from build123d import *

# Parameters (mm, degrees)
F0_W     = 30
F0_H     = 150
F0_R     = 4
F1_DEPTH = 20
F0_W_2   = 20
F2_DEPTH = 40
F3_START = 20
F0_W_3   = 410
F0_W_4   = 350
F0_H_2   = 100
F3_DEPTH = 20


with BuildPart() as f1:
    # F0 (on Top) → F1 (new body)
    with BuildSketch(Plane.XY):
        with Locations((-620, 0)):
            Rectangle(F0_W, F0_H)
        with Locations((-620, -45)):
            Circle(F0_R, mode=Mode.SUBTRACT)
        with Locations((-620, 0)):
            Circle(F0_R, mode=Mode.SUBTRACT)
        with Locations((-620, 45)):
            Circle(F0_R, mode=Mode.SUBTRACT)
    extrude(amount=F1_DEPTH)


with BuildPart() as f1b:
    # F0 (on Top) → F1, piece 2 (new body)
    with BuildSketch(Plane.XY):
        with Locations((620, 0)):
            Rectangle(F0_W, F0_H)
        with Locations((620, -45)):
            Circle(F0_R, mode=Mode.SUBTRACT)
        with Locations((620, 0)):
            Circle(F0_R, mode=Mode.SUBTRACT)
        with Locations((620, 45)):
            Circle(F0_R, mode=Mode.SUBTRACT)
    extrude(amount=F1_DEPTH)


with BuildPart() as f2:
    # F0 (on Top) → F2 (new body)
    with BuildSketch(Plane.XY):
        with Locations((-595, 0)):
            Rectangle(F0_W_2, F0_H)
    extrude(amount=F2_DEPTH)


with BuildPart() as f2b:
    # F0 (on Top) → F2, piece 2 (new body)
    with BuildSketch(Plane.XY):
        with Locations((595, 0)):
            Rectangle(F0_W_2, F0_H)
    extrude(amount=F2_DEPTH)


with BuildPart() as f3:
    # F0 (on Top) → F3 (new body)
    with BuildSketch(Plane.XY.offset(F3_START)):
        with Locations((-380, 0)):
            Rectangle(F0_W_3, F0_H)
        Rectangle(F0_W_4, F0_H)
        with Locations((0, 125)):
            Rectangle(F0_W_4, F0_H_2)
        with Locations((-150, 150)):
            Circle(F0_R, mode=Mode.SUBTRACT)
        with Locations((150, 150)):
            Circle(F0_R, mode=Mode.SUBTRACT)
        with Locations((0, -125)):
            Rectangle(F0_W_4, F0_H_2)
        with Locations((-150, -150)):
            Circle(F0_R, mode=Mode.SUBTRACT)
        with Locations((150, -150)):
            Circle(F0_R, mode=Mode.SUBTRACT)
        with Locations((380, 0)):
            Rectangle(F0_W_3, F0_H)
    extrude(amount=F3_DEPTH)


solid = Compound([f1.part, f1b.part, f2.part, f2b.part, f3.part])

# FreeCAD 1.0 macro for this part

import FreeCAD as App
import Part
import Sketcher
from FreeCAD import Vector


def add_polygon(sketch, points):
    """Adds a closed chain of lines whose ends are joined by coincident constraints."""
    first, n = sketch.GeometryCount, len(points)
    for a, b in zip(points, points[1:] + points[:1]):
        sketch.addGeometry(Part.LineSegment(App.Vector(*a, 0), App.Vector(*b, 0)), False)
    for i in range(n):
        sketch.addConstraint(Sketcher.Constraint("Coincident", first + i, 2, first + (i + 1) % n, 1))

doc = App.newDocument("Part")
body = doc.addObject("PartDesign::Body", "Body")

sketch1 = body.newObject("Sketcher::SketchObject", "Sketch")
sketch1.AttachmentSupport = (doc.getObject("XY_Plane"), [""])
sketch1.MapMode = "FlatFace"
add_polygon(sketch1, [(-635, 75), (-635, -75), (-605, -75), (-605, 75)])
sketch1.addGeometry(Part.Circle(Vector(-620, -45, 0), Vector(0, 0, 1), 4), False)
sketch1.addGeometry(Part.Circle(Vector(-620, 0, 0), Vector(0, 0, 1), 4), False)
sketch1.addGeometry(Part.Circle(Vector(-620, 45, 0), Vector(0, 0, 1), 4), False)
sketch1.addConstraint([
    Sketcher.Constraint("Vertical", 0),
    Sketcher.Constraint("Horizontal", 1),
    Sketcher.Constraint("Vertical", 2),
    Sketcher.Constraint("Horizontal", 3),
    Sketcher.Constraint("Equal", 4, 5),
    Sketcher.Constraint("Equal", 5, 6),
    Sketcher.Constraint("Symmetric", 4, 3, 6, 3, -1),
    Sketcher.Constraint("PointOnObject", 5, 3, -1),
    Sketcher.Constraint("Vertical", 4, 3, 5, 3),
    Sketcher.Constraint("Diameter", 4, 8.0),
    Sketcher.Constraint("DistanceX", 1, 1, 1, 2, 30.0),
    Sketcher.Constraint("DistanceY", 0, 2, 0, 1, 150.0),
    Sketcher.Constraint("DistanceX", 4, 3, -1, 1, 620.0),
    Sketcher.Constraint("DistanceY", 4, 3, -1, 1, 45.0),
    Sketcher.Constraint("DistanceX", 0, 2, -1, 1, 635.0),
    Sketcher.Constraint("DistanceY", 0, 2, -1, 1, 75.0),
])
pad1 = body.newObject("PartDesign::Pad", "Pad")
pad1.Profile = sketch1
pad1.Length = 20
body2 = doc.addObject("PartDesign::Body", "Body001")

sketch2 = body2.newObject("Sketcher::SketchObject", "Sketch001")
sketch2.AttachmentSupport = (doc.getObject("XY_Plane001"), [""])
sketch2.MapMode = "FlatFace"
add_polygon(sketch2, [(605, 75), (605, -75), (635, -75), (635, 75)])
sketch2.addGeometry(Part.Circle(Vector(620, -45, 0), Vector(0, 0, 1), 4), False)
sketch2.addGeometry(Part.Circle(Vector(620, 0, 0), Vector(0, 0, 1), 4), False)
sketch2.addGeometry(Part.Circle(Vector(620, 45, 0), Vector(0, 0, 1), 4), False)
sketch2.addConstraint([
    Sketcher.Constraint("Vertical", 0),
    Sketcher.Constraint("Horizontal", 1),
    Sketcher.Constraint("Vertical", 2),
    Sketcher.Constraint("Horizontal", 3),
    Sketcher.Constraint("Equal", 4, 5),
    Sketcher.Constraint("Equal", 5, 6),
    Sketcher.Constraint("Symmetric", 4, 3, 6, 3, -1),
    Sketcher.Constraint("PointOnObject", 5, 3, -1),
    Sketcher.Constraint("Vertical", 4, 3, 5, 3),
    Sketcher.Constraint("Diameter", 4, 8.0),
    Sketcher.Constraint("DistanceX", 1, 1, 1, 2, 30.0),
    Sketcher.Constraint("DistanceY", 0, 2, 0, 1, 150.0),
    Sketcher.Constraint("DistanceX", -1, 1, 4, 3, 620.0),
    Sketcher.Constraint("DistanceY", 4, 3, -1, 1, 45.0),
    Sketcher.Constraint("DistanceX", -1, 1, 0, 2, 605.0),
    Sketcher.Constraint("DistanceY", 0, 2, -1, 1, 75.0),
])
pad2 = body2.newObject("PartDesign::Pad", "Pad001")
pad2.Profile = sketch2
pad2.Length = 20
body3 = doc.addObject("PartDesign::Body", "Body002")

sketch3 = body3.newObject("Sketcher::SketchObject", "Sketch002")
sketch3.AttachmentSupport = (doc.getObject("XY_Plane002"), [""])
sketch3.MapMode = "FlatFace"
add_polygon(sketch3, [(-605, 75), (-605, -75), (-585, -75), (-585, 75)])
sketch3.addConstraint([
    Sketcher.Constraint("Vertical", 0),
    Sketcher.Constraint("Horizontal", 1),
    Sketcher.Constraint("Vertical", 2),
    Sketcher.Constraint("Horizontal", 3),
    Sketcher.Constraint("DistanceX", 1, 1, 1, 2, 20.0),
    Sketcher.Constraint("DistanceY", 0, 2, 0, 1, 150.0),
    Sketcher.Constraint("DistanceX", 0, 2, -1, 1, 605.0),
    Sketcher.Constraint("DistanceY", 0, 2, -1, 1, 75.0),
])
pad3 = body3.newObject("PartDesign::Pad", "Pad002")
pad3.Profile = sketch3
pad3.Length = 40
body4 = doc.addObject("PartDesign::Body", "Body003")

sketch4 = body4.newObject("Sketcher::SketchObject", "Sketch003")
sketch4.AttachmentSupport = (doc.getObject("XY_Plane003"), [""])
sketch4.MapMode = "FlatFace"
add_polygon(sketch4, [(585, 75), (585, -75), (605, -75), (605, 75)])
sketch4.addConstraint([
    Sketcher.Constraint("Vertical", 0),
    Sketcher.Constraint("Horizontal", 1),
    Sketcher.Constraint("Vertical", 2),
    Sketcher.Constraint("Horizontal", 3),
    Sketcher.Constraint("DistanceX", 1, 1, 1, 2, 20.0),
    Sketcher.Constraint("DistanceY", 0, 2, 0, 1, 150.0),
    Sketcher.Constraint("DistanceX", -1, 1, 0, 2, 585.0),
    Sketcher.Constraint("DistanceY", 0, 2, -1, 1, 75.0),
])
pad4 = body4.newObject("PartDesign::Pad", "Pad003")
pad4.Profile = sketch4
pad4.Length = 40
body5 = doc.addObject("PartDesign::Body", "Body004")

sketch5 = body5.newObject("Sketcher::SketchObject", "Sketch004")
sketch5.AttachmentSupport = (doc.getObject("XY_Plane004"), [""])
sketch5.MapMode = "FlatFace"
sketch5.AttachmentOffset = App.Placement(Vector(0, 0, 20), App.Rotation())
add_polygon(sketch5, [(-585, 75), (-585, -75), (-175, -75), (-175, -175), (175, -175), (175, -75), (585, -75), (585, 75), (175, 75), (175, 175), (-175, 175), (-175, 75)])
sketch5.addGeometry(Part.Circle(Vector(-150, -150, 0), Vector(0, 0, 1), 4), False)
sketch5.addGeometry(Part.Circle(Vector(150, -150, 0), Vector(0, 0, 1), 4), False)
sketch5.addGeometry(Part.Circle(Vector(-150, 150, 0), Vector(0, 0, 1), 4), False)
sketch5.addGeometry(Part.Circle(Vector(150, 150, 0), Vector(0, 0, 1), 4), False)
sketch5.addConstraint([
    Sketcher.Constraint("Vertical", 0),
    Sketcher.Constraint("Horizontal", 1),
    Sketcher.Constraint("Vertical", 2),
    Sketcher.Constraint("Horizontal", 3),
    Sketcher.Constraint("Vertical", 4),
    Sketcher.Constraint("Horizontal", 5),
    Sketcher.Constraint("Vertical", 6),
    Sketcher.Constraint("Horizontal", 7),
    Sketcher.Constraint("Vertical", 8),
    Sketcher.Constraint("Horizontal", 9),
    Sketcher.Constraint("Vertical", 10),
    Sketcher.Constraint("Horizontal", 11),
    Sketcher.Constraint("Equal", 12, 13),
    Sketcher.Constraint("Equal", 13, 14),
    Sketcher.Constraint("Equal", 14, 15),
    Sketcher.Constraint("Symmetric", 13, 3, 14, 3, -1, 1),
    Sketcher.Constraint("Symmetric", 12, 3, 15, 3, -1, 1),
    Sketcher.Constraint("Symmetric", 0, 2, 6, 2, -1, 1),
    Sketcher.Constraint("Symmetric", 2, 2, 8, 2, -1, 1),
    Sketcher.Constraint("Symmetric", 4, 2, 10, 2, -1, 1),
    Sketcher.Constraint("Symmetric", 12, 3, 13, 3, -2),
    Sketcher.Constraint("Symmetric", 1, 2, 4, 2, -2),
    Sketcher.Constraint("Diameter", 12, 8.0),
    Sketcher.Constraint("DistanceX", 1, 1, 1, 2, 410.0),
    Sketcher.Constraint("DistanceX", 3, 1, 3, 2, 350.0),
    Sketcher.Constraint("DistanceY", 0, 2, 0, 1, 150.0),
    Sketcher.Constraint("DistanceY", 2, 2, 2, 1, 100.0),
    Sketcher.Constraint("DistanceX", 12, 3, -1, 1, 150.0),
    Sketcher.Constraint("DistanceY", 12, 3, -1, 1, 150.0),
])
pad5 = body5.newObject("PartDesign::Pad", "Pad004")
pad5.Profile = sketch5
pad5.Length = 20

doc.recompute()
